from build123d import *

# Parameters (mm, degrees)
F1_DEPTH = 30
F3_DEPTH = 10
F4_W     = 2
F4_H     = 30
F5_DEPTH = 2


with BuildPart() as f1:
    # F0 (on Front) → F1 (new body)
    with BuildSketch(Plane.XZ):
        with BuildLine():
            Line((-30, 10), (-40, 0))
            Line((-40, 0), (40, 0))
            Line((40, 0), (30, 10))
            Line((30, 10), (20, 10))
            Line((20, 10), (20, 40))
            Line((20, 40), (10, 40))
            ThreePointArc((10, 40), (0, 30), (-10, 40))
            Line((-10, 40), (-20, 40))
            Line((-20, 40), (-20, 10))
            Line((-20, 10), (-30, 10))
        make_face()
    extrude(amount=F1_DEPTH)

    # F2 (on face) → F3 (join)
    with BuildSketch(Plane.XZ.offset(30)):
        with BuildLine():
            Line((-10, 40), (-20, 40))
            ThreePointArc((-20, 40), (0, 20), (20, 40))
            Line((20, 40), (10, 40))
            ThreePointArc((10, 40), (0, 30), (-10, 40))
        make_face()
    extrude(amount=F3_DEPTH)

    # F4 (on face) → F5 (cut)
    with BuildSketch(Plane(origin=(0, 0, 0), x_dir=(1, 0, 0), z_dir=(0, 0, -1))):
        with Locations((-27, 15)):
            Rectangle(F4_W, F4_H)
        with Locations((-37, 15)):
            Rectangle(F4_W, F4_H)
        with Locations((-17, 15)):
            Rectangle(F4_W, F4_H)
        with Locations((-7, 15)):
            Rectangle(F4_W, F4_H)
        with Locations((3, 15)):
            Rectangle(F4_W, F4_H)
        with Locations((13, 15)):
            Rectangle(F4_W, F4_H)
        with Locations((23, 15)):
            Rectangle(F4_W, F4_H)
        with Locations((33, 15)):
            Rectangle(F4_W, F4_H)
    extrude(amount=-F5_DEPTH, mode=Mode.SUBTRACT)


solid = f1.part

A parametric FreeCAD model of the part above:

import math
import FreeCAD as App
import Part
import Sketcher

V = App.Vector


def add_polygon(sketch, points):
    """Adds a closed chain of lines whose ends are joined by coincident constraints."""
    first, n = sketch.GeometryCount, len(points)
    for a, b in zip(points, points[1:] + points[:1]):
        sketch.addGeometry(Part.LineSegment(App.Vector(*a, 0), App.Vector(*b, 0)), False)
    for i in range(n):
        sketch.addConstraint(Sketcher.Constraint("Coincident", first + i, 2, first + (i + 1) % n, 1))

doc = App.newDocument("Part")
params = doc.addObject("Spreadsheet::Sheet", "Params")
for row, (alias, value) in enumerate([
    ("sketch1_radius", "10 mm"),
    ("sketch1_width", "80 mm"),
    ("sketch1_width2", "10 mm"),
    ("sketch1_height", "30 mm"),
    ("pad1_length", "30 mm"),
    ("sketch2_radius", "20 mm"),
    ("sketch2_radius2", "10 mm"),
    ("pad2_length", "10 mm"),
    ("sketch3_width", "2 mm"),
    ("sketch3_height", "30 mm"),
    ("pocket1_length", "2 mm"),
], start=1):
    params.set(f"A{row}", alias)
    params.set(f"B{row}", "=" + value)
    params.setAlias(f"B{row}", alias)

body = doc.addObject("PartDesign::Body", "Body")
body.AllowCompound = True

# Sketch on XZ plane
sketch1 = body.newObject("Sketcher::SketchObject", "Sketch")
sketch1.AttachmentSupport = (doc.getObject("XZ_Plane"), [""])
sketch1.MapMode = "FlatFace"
sketch1.addGeometry([
    Part.LineSegment(V(-30, 10, 0), V(-40, 0, 0)),  # 0
    Part.LineSegment(V(-40, 0, 0), V(40, 0, 0)),  # 1
    Part.LineSegment(V(40, 0, 0), V(30, 10, 0)),  # 2
    Part.LineSegment(V(30, 10, 0), V(20, 10, 0)),  # 3
    Part.LineSegment(V(20, 10, 0), V(20, 40, 0)),  # 4
    Part.LineSegment(V(20, 40, 0), V(10, 40, 0)),  # 5
    Part.ArcOfCircle(Part.Circle(V(0, 40, 0), V(0, 0, 1), 10), math.radians(180), math.radians(360)),  # 6
    Part.LineSegment(V(-10, 40, 0), V(-20, 40, 0)),  # 7
    Part.LineSegment(V(-20, 40, 0), V(-20, 10, 0)),  # 8
    Part.LineSegment(V(-20, 10, 0), V(-30, 10, 0)),  # 9
], False)
sketch1.addConstraint([
    Sketcher.Constraint("Coincident", 0, 2, 1, 1),
    Sketcher.Constraint("Coincident", 1, 2, 2, 1),
    Sketcher.Constraint("Coincident", 2, 2, 3, 1),
    Sketcher.Constraint("Coincident", 3, 2, 4, 1),
    Sketcher.Constraint("Coincident", 4, 2, 5, 1),
    Sketcher.Constraint("Coincident", 5, 2, 6, 2),
    Sketcher.Constraint("Coincident", 6, 1, 7, 1),
    Sketcher.Constraint("Coincident", 7, 2, 8, 1),
    Sketcher.Constraint("Coincident", 8, 2, 9, 1),
    Sketcher.Constraint("Coincident", 9, 2, 0, 1),
    Sketcher.Constraint("Horizontal", 1),
    Sketcher.Constraint("Horizontal", 3),
    Sketcher.Constraint("Vertical", 4),
    Sketcher.Constraint("Horizontal", 5),
    Sketcher.Constraint("Horizontal", 7),
    Sketcher.Constraint("Vertical", 8),
    Sketcher.Constraint("Horizontal", 9),
    Sketcher.Constraint("Symmetric", 0, 2, 1, 2, -1, 1),
    Sketcher.Constraint("Symmetric", 5, 2, 6, 1, -2),
    Sketcher.Constraint("Symmetric", 3, 2, 8, 2, -2),
    Sketcher.Constraint("Perpendicular", 0, 2),
    Sketcher.Constraint("Horizontal", 6, 3, 4, 2),
    Sketcher.Constraint("Equal", 3, 5),
    Sketcher.Constraint("Equal", 7, 9),
    Sketcher.Constraint("Radius", 6, 10.0),
    Sketcher.Constraint("DistanceX", 1, 1, 1, 2, 80.0),
    Sketcher.Constraint("DistanceX", 3, 2, 3, 1, 10.0),
    Sketcher.Constraint("DistanceY", 4, 1, 4, 2, 30.0),
])
sketch1.setExpression("Constraints[24]", "Params.sketch1_radius")
sketch1.setExpression("Constraints[25]", "Params.sketch1_width")
sketch1.setExpression("Constraints[26]", "Params.sketch1_width2")
sketch1.setExpression("Constraints[27]", "Params.sketch1_height")
pad1 = body.newObject("PartDesign::Pad", "Pad")
pad1.Profile = sketch1
pad1.setExpression("Length", "Params.pad1_length")

# Sketch on XZ plane
sketch2 = body.newObject("Sketcher::SketchObject", "Sketch001")
sketch2.AttachmentSupport = (doc.getObject("XZ_Plane"), [""])
sketch2.MapMode = "FlatFace"
sketch2.AttachmentOffset = App.Placement(V(0, 0, 30), App.Rotation())
sketch2.addGeometry([
    Part.LineSegment(V(-10, 40, 0), V(-20, 40, 0)),
    Part.ArcOfCircle(Part.Circle(V(0, 40, 0), V(0, 0, 1), 20), math.radians(180), math.radians(360)),
    Part.LineSegment(V(20, 40, 0), V(10, 40, 0)),
    Part.ArcOfCircle(Part.Circle(V(0, 40, 0), V(0, 0, 1), 10), math.radians(180), math.radians(360)),
], False)
sketch2.addConstraint([
    Sketcher.Constraint("Coincident", 0, 2, 1, 1),
    Sketcher.Constraint("Coincident", 1, 2, 2, 1),
    Sketcher.Constraint("Coincident", 2, 2, 3, 2),
    Sketcher.Constraint("Coincident", 3, 1, 0, 1),
    Sketcher.Constraint("Horizontal", 0),
    Sketcher.Constraint("Horizontal", 2),
    Sketcher.Constraint("Coincident", 3, 3, 1, 3),
    Sketcher.Constraint("Symmetric", 0, 2, 1, 2, -2),
    Sketcher.Constraint("Horizontal", 3, 3, 0, 2),
    Sketcher.Constraint("Radius", 1, 20.0),
    Sketcher.Constraint("Radius", 3, 10.0),
    Sketcher.Constraint("DistanceY", -1, 1, 1, 3, 40.0),
])
sketch2.setExpression("Constraints[9]", "Params.sketch2_radius")
sketch2.setExpression("Constraints[10]", "Params.sketch2_radius2")
pad2 = body.newObject("PartDesign::Pad", "Pad001")
pad2.Profile = sketch2
pad2.setExpression("Length", "Params.pad2_length")

# Sketch on XY plane
sketch3 = body.newObject("Sketcher::SketchObject", "Sketch002")
sketch3.AttachmentSupport = (doc.getObject("XY_Plane"), [""])
sketch3.MapMode = "FlatFace"
add_polygon(sketch3, [(-28, -30), (-28, 0), (-26, 0), (-26, -30)])  # lines 0-3
add_polygon(sketch3, [(-38, -30), (-38, 0), (-36, 0), (-36, -30)])  # lines 4-7
add_polygon(sketch3, [(-18, -30), (-18, 0), (-16, 0), (-16, -30)])  # lines 8-11
add_polygon(sketch3, [(-8, -30), (-8, 0), (-6, 0), (-6, -30)])  # lines 12-15
add_polygon(sketch3, [(2, -30), (2, 0), (4, 0), (4, -30)])  # lines 16-19
add_polygon(sketch3, [(12, -30), (12, 0), (14, 0), (14, -30)])  # lines 20-23
add_polygon(sketch3, [(22, -30), (22, 0), (24, 0), (24, -30)])  # lines 24-27
add_polygon(sketch3, [(32, -30), (32, 0), (34, 0), (34, -30)])  # lines 28-31
sketch3.addConstraint([
    Sketcher.Constraint("Vertical", 0),
    Sketcher.Constraint("Horizontal", 1),
    Sketcher.Constraint("Vertical", 2),
    Sketcher.Constraint("Horizontal", 3),
    Sketcher.Constraint("Vertical", 4),
    Sketcher.Constraint("Horizontal", 5),
    Sketcher.Constraint("Vertical", 6),
    Sketcher.Constraint("Horizontal", 7),
    Sketcher.Constraint("Vertical", 8),
    Sketcher.Constraint("Horizontal", 9),
    Sketcher.Constraint("Vertical", 10),
    Sketcher.Constraint("Horizontal", 11),
    Sketcher.Constraint("Vertical", 12),
    Sketcher.Constraint("Horizontal", 13),
    Sketcher.Constraint("Vertical", 14),
    Sketcher.Constraint("Horizontal", 15),
    Sketcher.Constraint("Vertical", 16),
    Sketcher.Constraint("Horizontal", 17),
    Sketcher.Constraint("Vertical", 18),
    Sketcher.Constraint("Horizontal", 19),
    Sketcher.Constraint("Vertical", 20),
    Sketcher.Constraint("Horizontal", 21),
    Sketcher.Constraint("Vertical", 22),
    Sketcher.Constraint("Horizontal", 23),
    Sketcher.Constraint("Vertical", 24),
    Sketcher.Constraint("Horizontal", 25),
    Sketcher.Constraint("Vertical", 26),
    Sketcher.Constraint("Horizontal", 27),
    Sketcher.Constraint("Vertical", 28),
    Sketcher.Constraint("Horizontal", 29),
    Sketcher.Constraint("Vertical", 30),
    Sketcher.Constraint("Horizontal", 31),
    Sketcher.Constraint("PointOnObject", 0, 2, -1),
    Sketcher.Constraint("PointOnObject", 4, 2, -1),
    Sketcher.Constraint("PointOnObject", 8, 2, -1),
    Sketcher.Constraint("PointOnObject", 12, 2, -1),
    Sketcher.Constraint("PointOnObject", 16, 2, -1),
    Sketcher.Constraint("PointOnObject", 20, 2, -1),
    Sketcher.Constraint("PointOnObject", 24, 2, -1),
    Sketcher.Constraint("PointOnObject", 28, 2, -1),
    Sketcher.Constraint("Horizontal", 3, 2, 6, 2),
    Sketcher.Constraint("Horizontal", 7, 2, 10, 2),
    Sketcher.Constraint("Horizontal", 11, 2, 14, 2),
    Sketcher.Constraint("Horizontal", 15, 2, 18, 2),
    Sketcher.Constraint("Horizontal", 19, 2, 22, 2),
    Sketcher.Constraint("Horizontal", 23, 2, 26, 2),
    Sketcher.Constraint("Horizontal", 27, 2, 30, 2),
    Sketcher.Constraint("Equal", 3, 5),
    Sketcher.Constraint("Equal", 7, 9),
    Sketcher.Constraint("Equal", 11, 13),
    Sketcher.Constraint("Equal", 15, 17),
    Sketcher.Constraint("Equal", 19, 21),
    Sketcher.Constraint("Equal", 23, 25),
    Sketcher.Constraint("Equal", 27, 29),
    Sketcher.Constraint("DistanceX", 1, 1, 1, 2, 2.0),
    Sketcher.Constraint("DistanceY", 0, 1, 0, 2, 30.0),
    Sketcher.Constraint("DistanceX", 0, 2, -1, 1, 28.0),
    Sketcher.Constraint("DistanceX", 4, 2, -1, 1, 38.0),
    Sketcher.Constraint("DistanceX", 8, 2, -1, 1, 18.0),
    Sketcher.Constraint("DistanceX", 12, 2, -1, 1, 8.0),
    Sketcher.Constraint("DistanceX", -1, 1, 16, 2, 2.0),
    Sketcher.Constraint("DistanceX", -1, 1, 20, 2, 12.0),
    Sketcher.Constraint("DistanceX", -1, 1, 24, 2, 22.0),
    Sketcher.Constraint("DistanceX", -1, 1, 28, 2, 32.0),
])
sketch3.setExpression("Constraints[86]", "Params.sketch3_width")
sketch3.setExpression("Constraints[87]", "Params.sketch3_height")
pocket1 = body.newObject("PartDesign::Pocket", "Pocket")
pocket1.Profile = sketch3
pocket1.setExpression("Length", "Params.pocket1_length")
pocket1.Reversed = True

doc.recompute()
